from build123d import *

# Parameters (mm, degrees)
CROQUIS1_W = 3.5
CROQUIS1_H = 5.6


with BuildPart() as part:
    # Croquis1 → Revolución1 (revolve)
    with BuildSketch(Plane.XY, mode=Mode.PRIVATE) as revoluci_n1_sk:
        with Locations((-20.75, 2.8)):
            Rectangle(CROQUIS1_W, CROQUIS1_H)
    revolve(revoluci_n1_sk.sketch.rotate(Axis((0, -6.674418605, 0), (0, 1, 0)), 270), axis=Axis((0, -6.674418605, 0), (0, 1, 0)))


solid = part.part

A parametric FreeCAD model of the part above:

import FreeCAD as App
import Part
import Sketcher
from FreeCAD import Vector
Q = App.Units.Quantity

doc = App.newDocument("Part")
params = doc.addObject("Spreadsheet::Sheet", "Params")
for row, (alias, value) in enumerate([
    ("sketch1_width", "3.5 mm"),
    ("sketch1_height", "5.6 mm"),
    ("revolution_angle", "360 deg"),
], start=1):
    params.set(f"A{row}", alias)
    params.set(f"B{row}", "=" + value)
    params.setAlias(f"B{row}", alias)

body = doc.addObject("PartDesign::Body", "Body")

# Sketch on XY plane
sketch1 = body.newObject("Sketcher::SketchObject", "Sketch")
sketch1.AttachmentSupport = (doc.getObject("XY_Plane"), [""])
sketch1.MapMode = "FlatFace"
sketch1.addGeometry([
    Part.LineSegment(Vector(-22.5, 5.6, 0), Vector(-22.5, 0, 0)),
    Part.LineSegment(Vector(-22.5, 0, 0), Vector(-19, 0, 0)),
    Part.LineSegment(Vector(-19, 0, 0), Vector(-19, 5.6, 0)),
    Part.LineSegment(Vector(-19, 5.6, 0), Vector(-22.5, 5.6, 0)),
], False)
sketch1.addConstraint([
    Sketcher.Constraint("Coincident", 0, 2, 1, 1),
    Sketcher.Constraint("Coincident", 1, 2, 2, 1),
    Sketcher.Constraint("Coincident", 2, 2, 3, 1),
    Sketcher.Constraint("Coincident", 3, 2, 0, 1),
    Sketcher.Constraint("Vertical", 0),
    Sketcher.Constraint("Horizontal", 1),
    Sketcher.Constraint("Vertical", 2),
    Sketcher.Constraint("Horizontal", 3),
    Sketcher.Constraint("PointOnObject", 0, 2, -1),
    Sketcher.Constraint("DistanceX", 1, 1, 1, 2, Q("3.5 mm")),
    Sketcher.Constraint("DistanceY", 0, 2, 0, 1, Q("5.6 mm")),
    Sketcher.Constraint("DistanceX", 1, 2, -1, 1, Q("19 mm")),
])
sketch1.setExpression("Constraints[9]", "Params.sketch1_width")
sketch1.setExpression("Constraints[10]", "Params.sketch1_height")
revolution = body.newObject("PartDesign::Revolution", "Revolution")
revolution.Profile = sketch1
revolution.ReferenceAxis = (sketch1, ["V_Axis"])
revolution.setExpression("Angle", "Params.revolution_angle")

doc.recompute()
